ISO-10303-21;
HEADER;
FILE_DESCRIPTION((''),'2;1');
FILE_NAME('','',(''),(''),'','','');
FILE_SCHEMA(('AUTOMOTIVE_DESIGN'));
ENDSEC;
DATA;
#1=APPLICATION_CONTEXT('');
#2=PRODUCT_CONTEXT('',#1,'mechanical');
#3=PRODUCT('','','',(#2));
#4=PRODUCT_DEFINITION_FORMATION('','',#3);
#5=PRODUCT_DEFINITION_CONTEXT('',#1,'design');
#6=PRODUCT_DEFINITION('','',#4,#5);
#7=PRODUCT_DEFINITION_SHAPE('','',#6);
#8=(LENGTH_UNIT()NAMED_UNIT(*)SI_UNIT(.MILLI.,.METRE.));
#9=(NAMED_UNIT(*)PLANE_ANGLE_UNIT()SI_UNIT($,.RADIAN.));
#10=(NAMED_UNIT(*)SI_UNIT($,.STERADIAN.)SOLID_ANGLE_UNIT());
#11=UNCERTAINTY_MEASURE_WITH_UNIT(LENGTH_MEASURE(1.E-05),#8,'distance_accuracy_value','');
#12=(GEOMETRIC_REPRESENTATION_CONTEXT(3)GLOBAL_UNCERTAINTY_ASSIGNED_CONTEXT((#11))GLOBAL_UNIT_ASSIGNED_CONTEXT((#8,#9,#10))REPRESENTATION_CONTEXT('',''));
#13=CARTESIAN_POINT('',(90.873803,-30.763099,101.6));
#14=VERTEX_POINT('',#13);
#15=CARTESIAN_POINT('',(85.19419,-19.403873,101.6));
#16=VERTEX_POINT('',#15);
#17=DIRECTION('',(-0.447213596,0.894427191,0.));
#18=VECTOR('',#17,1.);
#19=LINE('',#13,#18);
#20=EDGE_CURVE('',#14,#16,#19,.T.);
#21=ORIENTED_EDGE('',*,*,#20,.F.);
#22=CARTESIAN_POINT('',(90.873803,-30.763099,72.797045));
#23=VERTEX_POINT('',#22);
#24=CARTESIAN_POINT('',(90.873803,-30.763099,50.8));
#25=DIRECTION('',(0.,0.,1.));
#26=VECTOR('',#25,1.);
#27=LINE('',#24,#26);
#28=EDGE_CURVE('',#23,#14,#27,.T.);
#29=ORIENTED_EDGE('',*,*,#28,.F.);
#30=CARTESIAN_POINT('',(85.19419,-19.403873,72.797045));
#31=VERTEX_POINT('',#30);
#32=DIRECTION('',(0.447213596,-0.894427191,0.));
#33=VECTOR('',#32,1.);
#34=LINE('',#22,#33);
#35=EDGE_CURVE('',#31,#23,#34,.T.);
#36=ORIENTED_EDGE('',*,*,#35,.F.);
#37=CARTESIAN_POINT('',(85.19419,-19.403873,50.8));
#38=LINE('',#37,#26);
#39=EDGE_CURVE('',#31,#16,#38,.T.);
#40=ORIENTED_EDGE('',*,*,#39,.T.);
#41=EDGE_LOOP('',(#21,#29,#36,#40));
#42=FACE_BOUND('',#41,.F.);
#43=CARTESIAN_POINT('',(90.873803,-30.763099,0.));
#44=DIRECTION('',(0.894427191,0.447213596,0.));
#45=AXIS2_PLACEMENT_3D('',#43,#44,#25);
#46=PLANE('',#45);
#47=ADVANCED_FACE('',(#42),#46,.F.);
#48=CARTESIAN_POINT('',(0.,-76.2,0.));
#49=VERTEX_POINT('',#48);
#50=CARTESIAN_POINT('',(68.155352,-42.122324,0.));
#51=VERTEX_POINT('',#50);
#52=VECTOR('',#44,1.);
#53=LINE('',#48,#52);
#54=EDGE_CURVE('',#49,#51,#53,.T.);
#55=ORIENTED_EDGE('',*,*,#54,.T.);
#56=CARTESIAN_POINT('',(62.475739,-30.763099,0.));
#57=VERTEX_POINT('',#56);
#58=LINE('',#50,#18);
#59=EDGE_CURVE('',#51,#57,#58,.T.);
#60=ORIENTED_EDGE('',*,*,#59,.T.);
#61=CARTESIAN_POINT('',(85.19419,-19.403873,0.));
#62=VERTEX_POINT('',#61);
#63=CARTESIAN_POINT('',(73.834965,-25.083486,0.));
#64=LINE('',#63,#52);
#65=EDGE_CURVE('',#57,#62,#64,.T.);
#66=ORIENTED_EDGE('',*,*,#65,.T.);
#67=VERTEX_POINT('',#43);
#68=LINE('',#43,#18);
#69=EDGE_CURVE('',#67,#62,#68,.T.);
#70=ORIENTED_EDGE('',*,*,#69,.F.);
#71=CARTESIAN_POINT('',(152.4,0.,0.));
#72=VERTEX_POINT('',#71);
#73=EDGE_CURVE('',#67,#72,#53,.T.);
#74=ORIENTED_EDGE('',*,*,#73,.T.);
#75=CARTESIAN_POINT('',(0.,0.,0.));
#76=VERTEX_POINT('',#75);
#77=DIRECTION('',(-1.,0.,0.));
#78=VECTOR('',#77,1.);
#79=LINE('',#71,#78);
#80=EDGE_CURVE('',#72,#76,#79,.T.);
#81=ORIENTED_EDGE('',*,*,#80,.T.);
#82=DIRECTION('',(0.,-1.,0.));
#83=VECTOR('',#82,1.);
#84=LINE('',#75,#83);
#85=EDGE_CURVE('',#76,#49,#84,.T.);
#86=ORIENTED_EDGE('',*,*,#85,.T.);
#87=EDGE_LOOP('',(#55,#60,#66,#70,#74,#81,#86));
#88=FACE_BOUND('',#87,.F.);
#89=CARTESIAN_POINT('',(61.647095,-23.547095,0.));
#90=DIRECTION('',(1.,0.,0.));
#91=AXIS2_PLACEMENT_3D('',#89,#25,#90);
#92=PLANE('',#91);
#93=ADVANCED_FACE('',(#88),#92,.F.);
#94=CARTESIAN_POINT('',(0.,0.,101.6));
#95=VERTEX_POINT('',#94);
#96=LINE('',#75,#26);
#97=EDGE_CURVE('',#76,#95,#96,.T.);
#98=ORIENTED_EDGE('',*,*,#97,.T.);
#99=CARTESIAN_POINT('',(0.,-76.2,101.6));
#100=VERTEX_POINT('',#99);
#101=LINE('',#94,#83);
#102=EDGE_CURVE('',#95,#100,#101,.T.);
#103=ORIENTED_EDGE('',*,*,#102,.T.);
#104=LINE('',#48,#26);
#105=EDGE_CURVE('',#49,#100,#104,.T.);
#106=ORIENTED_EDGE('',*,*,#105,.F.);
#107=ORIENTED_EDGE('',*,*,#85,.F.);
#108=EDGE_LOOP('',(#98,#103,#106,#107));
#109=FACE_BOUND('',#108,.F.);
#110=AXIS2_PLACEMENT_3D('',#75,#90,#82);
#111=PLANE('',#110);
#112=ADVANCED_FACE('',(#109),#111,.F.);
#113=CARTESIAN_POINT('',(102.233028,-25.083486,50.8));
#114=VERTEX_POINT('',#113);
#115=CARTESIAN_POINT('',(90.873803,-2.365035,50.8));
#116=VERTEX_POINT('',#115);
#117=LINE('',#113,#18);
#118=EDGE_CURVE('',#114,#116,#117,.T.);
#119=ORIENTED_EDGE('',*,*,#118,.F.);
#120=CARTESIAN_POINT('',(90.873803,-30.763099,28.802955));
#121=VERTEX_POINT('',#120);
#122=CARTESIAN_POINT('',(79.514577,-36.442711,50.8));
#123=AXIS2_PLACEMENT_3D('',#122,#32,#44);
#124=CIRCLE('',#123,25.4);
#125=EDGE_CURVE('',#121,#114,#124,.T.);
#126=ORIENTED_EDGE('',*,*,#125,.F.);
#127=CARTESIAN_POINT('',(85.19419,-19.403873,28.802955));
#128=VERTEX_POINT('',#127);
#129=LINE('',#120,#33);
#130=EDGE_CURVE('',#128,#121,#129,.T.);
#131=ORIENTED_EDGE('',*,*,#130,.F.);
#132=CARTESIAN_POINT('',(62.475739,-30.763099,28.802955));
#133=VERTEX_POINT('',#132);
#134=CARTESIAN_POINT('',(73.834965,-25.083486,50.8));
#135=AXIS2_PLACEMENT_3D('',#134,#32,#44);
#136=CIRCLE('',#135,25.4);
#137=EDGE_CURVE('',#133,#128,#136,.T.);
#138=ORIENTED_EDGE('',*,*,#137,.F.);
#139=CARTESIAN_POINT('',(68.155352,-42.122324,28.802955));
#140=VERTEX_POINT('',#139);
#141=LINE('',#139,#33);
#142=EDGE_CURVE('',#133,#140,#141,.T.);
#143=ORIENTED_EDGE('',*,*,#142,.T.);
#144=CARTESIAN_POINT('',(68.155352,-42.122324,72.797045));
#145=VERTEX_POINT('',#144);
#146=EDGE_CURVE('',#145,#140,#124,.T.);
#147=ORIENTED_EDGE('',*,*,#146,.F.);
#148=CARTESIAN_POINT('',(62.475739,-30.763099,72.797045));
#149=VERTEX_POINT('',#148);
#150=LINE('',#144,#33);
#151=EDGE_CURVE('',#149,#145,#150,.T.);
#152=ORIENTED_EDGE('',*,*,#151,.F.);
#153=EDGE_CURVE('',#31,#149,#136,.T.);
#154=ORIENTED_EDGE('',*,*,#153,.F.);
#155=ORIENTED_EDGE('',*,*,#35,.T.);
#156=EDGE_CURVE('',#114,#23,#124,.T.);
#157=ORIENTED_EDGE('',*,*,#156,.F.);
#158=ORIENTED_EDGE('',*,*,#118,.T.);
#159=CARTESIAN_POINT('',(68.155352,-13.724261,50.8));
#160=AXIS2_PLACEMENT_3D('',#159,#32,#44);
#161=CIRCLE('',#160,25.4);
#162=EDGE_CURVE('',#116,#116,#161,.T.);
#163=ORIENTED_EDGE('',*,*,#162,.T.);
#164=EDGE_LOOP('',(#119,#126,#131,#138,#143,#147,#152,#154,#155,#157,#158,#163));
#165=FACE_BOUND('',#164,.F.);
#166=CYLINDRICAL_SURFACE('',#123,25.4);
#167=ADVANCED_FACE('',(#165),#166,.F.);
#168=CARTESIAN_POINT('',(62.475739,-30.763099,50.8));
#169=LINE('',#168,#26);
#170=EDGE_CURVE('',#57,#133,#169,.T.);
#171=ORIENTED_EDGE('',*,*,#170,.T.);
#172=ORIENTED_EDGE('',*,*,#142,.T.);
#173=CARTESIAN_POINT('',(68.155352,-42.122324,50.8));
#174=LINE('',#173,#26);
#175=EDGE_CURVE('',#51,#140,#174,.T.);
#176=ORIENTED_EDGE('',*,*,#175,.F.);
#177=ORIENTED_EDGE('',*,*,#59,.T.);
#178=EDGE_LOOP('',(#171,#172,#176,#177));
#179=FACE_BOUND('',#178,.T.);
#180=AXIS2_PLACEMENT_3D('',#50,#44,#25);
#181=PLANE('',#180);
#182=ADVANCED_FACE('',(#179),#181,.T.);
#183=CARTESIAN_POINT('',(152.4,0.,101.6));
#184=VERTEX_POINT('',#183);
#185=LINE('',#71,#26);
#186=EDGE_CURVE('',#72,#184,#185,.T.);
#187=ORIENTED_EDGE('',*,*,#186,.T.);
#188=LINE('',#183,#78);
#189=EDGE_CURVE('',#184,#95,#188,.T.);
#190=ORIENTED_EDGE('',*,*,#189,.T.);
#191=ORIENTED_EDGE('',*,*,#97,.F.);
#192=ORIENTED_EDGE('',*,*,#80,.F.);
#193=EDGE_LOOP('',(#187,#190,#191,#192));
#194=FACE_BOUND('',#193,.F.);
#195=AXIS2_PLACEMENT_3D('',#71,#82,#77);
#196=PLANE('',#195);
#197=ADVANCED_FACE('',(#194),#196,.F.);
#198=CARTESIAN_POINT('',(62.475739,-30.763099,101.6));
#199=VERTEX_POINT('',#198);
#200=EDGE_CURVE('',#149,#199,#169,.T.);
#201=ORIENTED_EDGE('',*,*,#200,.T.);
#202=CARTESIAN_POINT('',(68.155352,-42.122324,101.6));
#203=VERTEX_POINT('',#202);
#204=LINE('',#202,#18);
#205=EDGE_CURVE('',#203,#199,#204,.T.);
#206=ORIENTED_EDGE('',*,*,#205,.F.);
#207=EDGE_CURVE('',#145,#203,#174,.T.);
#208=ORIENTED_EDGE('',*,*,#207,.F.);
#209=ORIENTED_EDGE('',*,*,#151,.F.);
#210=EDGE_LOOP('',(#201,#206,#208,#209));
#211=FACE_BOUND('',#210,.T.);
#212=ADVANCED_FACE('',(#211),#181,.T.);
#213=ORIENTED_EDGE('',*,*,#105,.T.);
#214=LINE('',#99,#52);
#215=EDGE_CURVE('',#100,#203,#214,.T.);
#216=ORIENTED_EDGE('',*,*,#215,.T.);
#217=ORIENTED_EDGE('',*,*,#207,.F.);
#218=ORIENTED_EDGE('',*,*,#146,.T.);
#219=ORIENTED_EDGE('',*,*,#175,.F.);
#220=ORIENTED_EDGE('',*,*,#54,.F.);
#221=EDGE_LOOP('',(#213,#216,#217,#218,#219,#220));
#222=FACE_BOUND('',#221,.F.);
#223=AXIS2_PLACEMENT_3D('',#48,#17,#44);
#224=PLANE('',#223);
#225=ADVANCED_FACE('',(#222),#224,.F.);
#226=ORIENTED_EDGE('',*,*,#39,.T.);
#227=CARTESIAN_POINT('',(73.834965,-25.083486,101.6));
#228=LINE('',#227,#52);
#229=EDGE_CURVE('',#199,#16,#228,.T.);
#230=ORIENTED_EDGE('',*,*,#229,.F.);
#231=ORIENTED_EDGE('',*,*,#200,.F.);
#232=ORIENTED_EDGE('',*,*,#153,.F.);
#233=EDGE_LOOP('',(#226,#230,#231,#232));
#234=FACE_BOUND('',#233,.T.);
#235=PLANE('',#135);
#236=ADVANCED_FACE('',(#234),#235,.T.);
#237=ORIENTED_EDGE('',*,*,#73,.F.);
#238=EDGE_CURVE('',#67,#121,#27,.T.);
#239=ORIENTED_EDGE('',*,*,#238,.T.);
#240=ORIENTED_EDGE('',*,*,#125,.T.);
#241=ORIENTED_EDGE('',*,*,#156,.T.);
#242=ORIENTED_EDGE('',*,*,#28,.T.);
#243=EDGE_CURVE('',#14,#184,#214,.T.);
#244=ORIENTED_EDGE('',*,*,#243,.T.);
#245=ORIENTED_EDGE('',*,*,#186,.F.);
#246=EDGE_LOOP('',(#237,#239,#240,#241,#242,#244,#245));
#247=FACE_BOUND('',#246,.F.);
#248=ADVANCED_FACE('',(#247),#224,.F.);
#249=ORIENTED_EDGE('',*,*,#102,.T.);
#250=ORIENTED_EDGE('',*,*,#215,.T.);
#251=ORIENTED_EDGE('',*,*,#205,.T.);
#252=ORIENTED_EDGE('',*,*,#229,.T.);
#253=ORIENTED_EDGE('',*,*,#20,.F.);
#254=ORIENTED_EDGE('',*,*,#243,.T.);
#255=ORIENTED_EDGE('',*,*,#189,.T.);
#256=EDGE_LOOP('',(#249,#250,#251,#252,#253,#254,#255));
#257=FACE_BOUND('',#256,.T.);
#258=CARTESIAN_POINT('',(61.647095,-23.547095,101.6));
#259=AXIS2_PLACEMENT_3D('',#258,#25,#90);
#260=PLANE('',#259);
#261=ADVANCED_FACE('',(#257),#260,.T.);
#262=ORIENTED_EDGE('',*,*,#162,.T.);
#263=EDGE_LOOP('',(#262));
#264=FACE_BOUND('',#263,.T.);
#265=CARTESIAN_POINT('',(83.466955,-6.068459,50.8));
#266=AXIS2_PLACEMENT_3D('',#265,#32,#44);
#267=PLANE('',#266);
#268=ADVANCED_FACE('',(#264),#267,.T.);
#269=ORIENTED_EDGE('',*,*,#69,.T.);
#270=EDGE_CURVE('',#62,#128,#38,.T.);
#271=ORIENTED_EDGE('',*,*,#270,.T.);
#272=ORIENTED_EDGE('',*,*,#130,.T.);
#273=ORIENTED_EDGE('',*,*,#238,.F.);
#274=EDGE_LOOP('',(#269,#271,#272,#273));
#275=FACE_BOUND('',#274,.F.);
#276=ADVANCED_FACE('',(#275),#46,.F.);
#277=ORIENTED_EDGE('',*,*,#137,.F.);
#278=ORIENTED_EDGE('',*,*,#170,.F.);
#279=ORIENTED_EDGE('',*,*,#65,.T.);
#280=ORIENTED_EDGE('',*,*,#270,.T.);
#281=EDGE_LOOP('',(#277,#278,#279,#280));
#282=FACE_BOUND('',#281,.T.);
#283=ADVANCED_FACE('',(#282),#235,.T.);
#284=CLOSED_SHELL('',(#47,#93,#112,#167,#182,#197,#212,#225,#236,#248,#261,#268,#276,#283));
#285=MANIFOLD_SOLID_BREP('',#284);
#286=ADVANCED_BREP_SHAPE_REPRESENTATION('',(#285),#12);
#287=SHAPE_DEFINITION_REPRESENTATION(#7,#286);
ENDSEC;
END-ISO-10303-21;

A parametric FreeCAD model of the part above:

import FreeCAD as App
import Part
import Sketcher

V = App.Vector
Q = App.Units.Quantity


def add_polygon(sketch, points):
    """Adds a closed chain of lines whose ends are joined by coincident constraints."""
    first, n = sketch.GeometryCount, len(points)
    for a, b in zip(points, points[1:] + points[:1]):
        sketch.addGeometry(Part.LineSegment(App.Vector(*a, 0), App.Vector(*b, 0)), False)
    for i in range(n):
        sketch.addConstraint(Sketcher.Constraint("Coincident", first + i, 2, first + (i + 1) % n, 1))

doc = App.newDocument("Part")
body = doc.addObject("PartDesign::Body", "Body")

# Sketch on XY plane
sketch1 = doc.addObject("Sketcher::SketchObject", "Sketch")
body.addObject(sketch1)
sketch1.AttachmentSupport = (doc.XY_Plane, [""])
sketch1.MapMode = "FlatFace"
add_polygon(sketch1, [(152, 0), (0, 0), (0, -76)])  # lines 0-2
sketch1.addConstraint([
    Sketcher.Constraint("Horizontal", 0),
    Sketcher.Constraint("Vertical", 1),
    Sketcher.Constraint("Coincident", 0, 2, -1, 1),
    Sketcher.Constraint("DistanceX", 0, 2, 0, 1, Q("6 in")),
    Sketcher.Constraint("DistanceY", 1, 2, 1, 1, Q("3 in")),
])
pad1 = doc.addObject("PartDesign::Pad", "Pad")
body.addObject(pad1)
pad1.Profile = sketch1
pad1.Length = Q("4 in")

# Sketch on an angled plane
sketch2 = doc.addObject("Sketcher::SketchObject", "Sketch001")
body.addObject(sketch2)
sketch2.Placement = App.Placement(V(30.48, -60.96, 0), App.Rotation(V(0.894427191, 0.447213595, 0), V(0, 0, 1), V(0.447213595, -0.894427191, 0), "ZXY"))
add_polygon(sketch2, [(42, 102), (42, 0), (68, 0), (68, 102)])  # lines 0-3
sketch2.addConstraint([
    Sketcher.Constraint("Vertical", 0),
    Sketcher.Constraint("Horizontal", 1),
    Sketcher.Constraint("Vertical", 2),
    Sketcher.Constraint("Horizontal", 3),
    Sketcher.Constraint("PointOnObject", 0, 2, -1),
    Sketcher.Constraint("DistanceX", 1, 1, 1, 2, Q("1 in")),
    Sketcher.Constraint("DistanceY", 0, 2, 0, 1, Q("4 in")),
    Sketcher.Constraint("DistanceX", -1, 1, 0, 2, Q("42.122324 mm")),
])
pocket1 = doc.addObject("PartDesign::Pocket", "Pocket")
body.addObject(pocket1)
pocket1.Profile = sketch2
pocket1.Length = Q("0.5 in")

# Sketch on an angled plane
sketch3 = doc.addObject("Sketcher::SketchObject", "Sketch002")
body.addObject(sketch3)
sketch3.Placement = App.Placement(V(30.48, -60.96, 0), App.Rotation(V(0.894427191, 0.447213595, 0), V(0, 0, 1), V(0.447213595, -0.894427191, 0), "ZXY"))
sketch3.addGeometry(Part.Circle(V(55, 51, 0), V(0, 0, 1), 25), False)
sketch3.addConstraint([
    Sketcher.Constraint("Diameter", 0, Q("2 in")),
    Sketcher.Constraint("DistanceY", -1, 1, 0, 3, Q("2 in")),
    Sketcher.Constraint("DistanceX", -1, 1, 0, 3, Q("54.822324 mm")),
])
pocket2 = doc.addObject("PartDesign::Pocket", "Pocket001")
body.addObject(pocket2)
pocket2.Profile = sketch3
pocket2.Length = Q("1 in")

doc.recompute()
